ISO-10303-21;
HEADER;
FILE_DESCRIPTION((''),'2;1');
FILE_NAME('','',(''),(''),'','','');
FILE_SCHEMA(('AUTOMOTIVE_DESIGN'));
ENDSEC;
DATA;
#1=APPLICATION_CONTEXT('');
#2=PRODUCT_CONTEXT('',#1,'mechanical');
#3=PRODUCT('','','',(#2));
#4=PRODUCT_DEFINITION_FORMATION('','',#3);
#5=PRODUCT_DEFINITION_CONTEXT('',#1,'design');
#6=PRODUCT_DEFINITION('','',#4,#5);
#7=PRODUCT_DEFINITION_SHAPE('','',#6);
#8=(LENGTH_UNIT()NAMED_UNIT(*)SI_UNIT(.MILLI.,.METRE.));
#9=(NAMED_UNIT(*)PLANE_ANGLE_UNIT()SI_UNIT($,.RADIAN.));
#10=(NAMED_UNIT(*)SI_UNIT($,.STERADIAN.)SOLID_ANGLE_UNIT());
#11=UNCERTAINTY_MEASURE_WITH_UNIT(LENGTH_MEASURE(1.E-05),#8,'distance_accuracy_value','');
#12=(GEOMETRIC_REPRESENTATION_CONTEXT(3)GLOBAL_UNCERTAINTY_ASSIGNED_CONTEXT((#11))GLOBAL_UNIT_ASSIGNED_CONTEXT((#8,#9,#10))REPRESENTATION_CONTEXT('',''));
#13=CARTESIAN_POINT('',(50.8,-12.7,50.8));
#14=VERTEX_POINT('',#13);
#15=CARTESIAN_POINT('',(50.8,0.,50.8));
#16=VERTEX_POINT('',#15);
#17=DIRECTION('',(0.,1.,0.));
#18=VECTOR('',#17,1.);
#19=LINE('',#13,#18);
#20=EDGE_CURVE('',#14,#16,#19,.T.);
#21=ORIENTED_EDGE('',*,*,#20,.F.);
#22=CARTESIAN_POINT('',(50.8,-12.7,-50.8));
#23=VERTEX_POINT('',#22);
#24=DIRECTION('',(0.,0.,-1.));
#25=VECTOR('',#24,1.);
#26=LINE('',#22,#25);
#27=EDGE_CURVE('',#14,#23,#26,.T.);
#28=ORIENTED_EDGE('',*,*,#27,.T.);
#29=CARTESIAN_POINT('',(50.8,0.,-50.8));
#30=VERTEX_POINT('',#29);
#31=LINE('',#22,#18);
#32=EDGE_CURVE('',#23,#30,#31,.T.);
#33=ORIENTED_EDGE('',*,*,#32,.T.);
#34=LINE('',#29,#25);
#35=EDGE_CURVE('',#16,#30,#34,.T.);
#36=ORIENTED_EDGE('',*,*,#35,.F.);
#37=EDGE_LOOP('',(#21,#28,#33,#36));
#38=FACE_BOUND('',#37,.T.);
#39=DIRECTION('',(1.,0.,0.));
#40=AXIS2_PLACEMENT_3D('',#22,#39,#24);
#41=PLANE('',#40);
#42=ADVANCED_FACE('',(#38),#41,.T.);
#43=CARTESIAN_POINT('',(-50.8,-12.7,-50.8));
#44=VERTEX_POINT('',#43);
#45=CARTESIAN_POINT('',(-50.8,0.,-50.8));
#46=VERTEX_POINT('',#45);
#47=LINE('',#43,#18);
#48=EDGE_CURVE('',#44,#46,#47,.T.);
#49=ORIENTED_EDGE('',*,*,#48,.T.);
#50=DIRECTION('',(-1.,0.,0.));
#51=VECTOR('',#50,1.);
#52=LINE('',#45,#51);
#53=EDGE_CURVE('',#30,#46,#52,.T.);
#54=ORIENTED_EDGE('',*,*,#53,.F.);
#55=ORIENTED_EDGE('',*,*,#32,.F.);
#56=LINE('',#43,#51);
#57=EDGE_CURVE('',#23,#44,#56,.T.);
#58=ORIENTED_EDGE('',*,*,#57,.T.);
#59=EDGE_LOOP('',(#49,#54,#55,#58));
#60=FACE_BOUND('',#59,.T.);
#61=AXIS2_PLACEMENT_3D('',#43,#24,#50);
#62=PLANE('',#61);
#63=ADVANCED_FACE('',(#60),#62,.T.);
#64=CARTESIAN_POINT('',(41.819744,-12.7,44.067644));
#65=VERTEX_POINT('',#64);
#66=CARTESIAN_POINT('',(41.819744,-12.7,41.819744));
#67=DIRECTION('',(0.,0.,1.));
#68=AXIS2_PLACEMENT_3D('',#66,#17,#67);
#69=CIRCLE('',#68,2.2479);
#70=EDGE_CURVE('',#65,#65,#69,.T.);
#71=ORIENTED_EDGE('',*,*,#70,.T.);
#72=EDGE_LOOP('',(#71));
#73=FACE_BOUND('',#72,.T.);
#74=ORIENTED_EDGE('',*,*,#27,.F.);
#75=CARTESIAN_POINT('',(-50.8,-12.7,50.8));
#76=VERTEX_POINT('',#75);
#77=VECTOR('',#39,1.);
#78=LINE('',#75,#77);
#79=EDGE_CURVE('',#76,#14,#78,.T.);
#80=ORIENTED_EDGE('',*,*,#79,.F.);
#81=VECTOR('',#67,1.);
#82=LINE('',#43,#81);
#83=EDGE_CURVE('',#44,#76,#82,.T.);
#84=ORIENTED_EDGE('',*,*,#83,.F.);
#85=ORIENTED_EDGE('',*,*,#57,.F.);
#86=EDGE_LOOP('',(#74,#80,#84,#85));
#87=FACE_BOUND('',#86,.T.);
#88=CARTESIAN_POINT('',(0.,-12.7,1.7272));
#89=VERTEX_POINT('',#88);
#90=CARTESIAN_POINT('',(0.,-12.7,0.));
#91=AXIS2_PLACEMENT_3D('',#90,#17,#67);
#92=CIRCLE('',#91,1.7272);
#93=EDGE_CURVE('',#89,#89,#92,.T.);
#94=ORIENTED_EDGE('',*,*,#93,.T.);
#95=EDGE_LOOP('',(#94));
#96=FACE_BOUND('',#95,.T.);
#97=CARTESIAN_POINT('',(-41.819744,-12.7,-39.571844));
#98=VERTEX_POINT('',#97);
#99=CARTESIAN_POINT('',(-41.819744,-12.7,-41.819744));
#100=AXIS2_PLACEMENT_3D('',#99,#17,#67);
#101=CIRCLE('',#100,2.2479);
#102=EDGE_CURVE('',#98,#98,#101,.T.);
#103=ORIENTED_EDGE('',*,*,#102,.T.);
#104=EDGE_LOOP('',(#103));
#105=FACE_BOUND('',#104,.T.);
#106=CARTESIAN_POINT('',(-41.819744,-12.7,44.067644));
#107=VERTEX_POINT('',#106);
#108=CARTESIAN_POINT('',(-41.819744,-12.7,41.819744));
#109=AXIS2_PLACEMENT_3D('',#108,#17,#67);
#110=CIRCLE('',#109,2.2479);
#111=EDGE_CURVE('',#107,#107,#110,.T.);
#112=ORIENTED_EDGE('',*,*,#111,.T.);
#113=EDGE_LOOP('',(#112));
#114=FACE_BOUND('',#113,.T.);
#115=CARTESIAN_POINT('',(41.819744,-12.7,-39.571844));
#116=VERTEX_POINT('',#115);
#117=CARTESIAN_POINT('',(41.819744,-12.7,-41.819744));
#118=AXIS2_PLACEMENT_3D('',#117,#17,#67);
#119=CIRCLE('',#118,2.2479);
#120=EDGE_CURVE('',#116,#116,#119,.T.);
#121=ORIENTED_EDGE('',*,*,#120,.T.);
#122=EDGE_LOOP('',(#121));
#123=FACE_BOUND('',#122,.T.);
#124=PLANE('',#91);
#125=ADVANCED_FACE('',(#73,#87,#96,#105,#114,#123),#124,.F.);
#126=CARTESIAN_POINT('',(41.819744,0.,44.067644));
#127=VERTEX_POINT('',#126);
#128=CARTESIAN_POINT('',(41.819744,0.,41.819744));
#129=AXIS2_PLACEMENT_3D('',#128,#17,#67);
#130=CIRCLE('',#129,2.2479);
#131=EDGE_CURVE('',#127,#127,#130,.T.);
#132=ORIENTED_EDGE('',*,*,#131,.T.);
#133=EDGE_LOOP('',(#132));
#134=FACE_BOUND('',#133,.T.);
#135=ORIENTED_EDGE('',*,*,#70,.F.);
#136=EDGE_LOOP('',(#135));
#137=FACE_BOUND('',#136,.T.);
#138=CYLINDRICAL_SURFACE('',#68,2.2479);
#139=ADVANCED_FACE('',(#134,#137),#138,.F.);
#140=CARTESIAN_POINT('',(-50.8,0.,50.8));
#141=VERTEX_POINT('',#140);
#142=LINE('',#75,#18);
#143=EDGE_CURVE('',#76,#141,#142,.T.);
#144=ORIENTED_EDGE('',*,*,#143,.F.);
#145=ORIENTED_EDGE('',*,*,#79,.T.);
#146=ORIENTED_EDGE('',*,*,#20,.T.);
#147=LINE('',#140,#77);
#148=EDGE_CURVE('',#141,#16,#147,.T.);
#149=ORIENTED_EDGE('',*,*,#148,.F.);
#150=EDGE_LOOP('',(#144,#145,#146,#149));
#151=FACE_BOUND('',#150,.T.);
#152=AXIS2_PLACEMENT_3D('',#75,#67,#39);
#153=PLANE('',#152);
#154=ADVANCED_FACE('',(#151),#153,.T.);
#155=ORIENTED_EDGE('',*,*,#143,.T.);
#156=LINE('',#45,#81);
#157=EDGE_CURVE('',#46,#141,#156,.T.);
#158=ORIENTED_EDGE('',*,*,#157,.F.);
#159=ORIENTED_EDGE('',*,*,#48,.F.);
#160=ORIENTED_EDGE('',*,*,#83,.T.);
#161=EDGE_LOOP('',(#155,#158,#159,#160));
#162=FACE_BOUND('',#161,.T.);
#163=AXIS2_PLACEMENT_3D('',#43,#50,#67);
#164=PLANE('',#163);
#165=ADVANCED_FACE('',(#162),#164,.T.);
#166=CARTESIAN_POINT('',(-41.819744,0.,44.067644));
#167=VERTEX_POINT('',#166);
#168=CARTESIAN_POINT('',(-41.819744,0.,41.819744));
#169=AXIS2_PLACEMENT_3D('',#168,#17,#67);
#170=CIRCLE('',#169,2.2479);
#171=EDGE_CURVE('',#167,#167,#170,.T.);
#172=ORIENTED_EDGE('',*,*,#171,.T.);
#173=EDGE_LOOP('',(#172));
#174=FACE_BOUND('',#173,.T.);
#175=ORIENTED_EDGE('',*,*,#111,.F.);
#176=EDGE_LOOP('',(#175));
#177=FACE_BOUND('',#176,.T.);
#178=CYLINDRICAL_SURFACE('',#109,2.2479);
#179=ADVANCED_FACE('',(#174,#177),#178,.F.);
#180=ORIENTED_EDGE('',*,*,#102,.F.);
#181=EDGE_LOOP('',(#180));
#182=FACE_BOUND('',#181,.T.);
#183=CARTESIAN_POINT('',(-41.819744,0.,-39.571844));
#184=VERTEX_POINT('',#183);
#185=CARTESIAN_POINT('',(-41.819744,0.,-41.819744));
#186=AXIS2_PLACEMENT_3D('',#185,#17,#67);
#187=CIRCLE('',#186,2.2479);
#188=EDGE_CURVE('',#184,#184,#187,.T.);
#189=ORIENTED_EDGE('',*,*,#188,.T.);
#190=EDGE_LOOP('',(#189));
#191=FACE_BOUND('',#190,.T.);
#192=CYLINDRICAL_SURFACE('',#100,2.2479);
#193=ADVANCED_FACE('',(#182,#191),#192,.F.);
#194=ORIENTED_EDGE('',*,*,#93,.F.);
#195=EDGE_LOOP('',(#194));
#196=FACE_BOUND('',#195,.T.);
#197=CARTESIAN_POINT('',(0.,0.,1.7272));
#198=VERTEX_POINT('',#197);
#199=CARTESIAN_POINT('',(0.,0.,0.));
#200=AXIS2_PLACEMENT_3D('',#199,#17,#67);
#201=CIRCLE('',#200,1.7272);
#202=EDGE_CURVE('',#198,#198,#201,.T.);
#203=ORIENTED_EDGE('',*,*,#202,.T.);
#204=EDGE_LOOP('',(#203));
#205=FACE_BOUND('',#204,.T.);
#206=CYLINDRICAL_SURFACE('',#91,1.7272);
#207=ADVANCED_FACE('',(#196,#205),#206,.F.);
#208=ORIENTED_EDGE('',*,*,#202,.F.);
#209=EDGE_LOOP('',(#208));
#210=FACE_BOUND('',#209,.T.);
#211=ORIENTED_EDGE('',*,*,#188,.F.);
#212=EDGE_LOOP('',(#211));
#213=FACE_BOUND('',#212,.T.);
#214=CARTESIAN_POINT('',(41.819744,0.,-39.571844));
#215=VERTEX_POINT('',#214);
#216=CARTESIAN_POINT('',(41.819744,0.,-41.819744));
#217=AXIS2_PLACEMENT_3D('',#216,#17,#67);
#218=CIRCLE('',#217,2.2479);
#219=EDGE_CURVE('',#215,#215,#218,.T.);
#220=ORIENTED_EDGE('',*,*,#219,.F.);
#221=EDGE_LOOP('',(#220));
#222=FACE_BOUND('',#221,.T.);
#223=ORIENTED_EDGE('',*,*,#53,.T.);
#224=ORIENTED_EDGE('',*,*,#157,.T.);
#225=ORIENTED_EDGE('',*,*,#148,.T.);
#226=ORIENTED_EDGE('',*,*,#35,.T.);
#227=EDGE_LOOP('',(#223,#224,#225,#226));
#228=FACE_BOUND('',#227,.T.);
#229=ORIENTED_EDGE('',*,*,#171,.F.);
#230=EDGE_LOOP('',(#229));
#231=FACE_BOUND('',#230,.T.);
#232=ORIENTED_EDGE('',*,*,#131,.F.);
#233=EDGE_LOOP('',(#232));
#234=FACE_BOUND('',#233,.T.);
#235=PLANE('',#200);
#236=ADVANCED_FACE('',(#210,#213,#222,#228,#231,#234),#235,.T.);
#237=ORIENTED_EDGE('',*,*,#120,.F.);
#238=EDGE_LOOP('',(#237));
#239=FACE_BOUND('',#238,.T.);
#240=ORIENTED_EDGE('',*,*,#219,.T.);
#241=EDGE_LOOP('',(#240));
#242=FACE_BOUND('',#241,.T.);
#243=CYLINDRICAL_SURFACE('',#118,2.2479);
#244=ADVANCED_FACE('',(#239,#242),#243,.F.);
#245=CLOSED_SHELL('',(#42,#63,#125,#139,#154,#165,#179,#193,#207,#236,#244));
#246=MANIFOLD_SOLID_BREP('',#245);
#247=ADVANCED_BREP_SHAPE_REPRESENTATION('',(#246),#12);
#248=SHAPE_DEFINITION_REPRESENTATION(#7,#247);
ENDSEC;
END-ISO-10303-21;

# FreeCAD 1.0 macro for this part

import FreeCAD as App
import Part
import Sketcher

V = App.Vector
Q = App.Units.Quantity

doc = App.newDocument("Part")
body = doc.addObject("PartDesign::Body", "Body")

sketch1 = body.newObject("Sketcher::SketchObject", "Sketch")
sketch1.AttachmentSupport = (doc.getObject("XZ_Plane"), [""])
sketch1.MapMode = "FlatFace"
sketch1.addGeometry([
    Part.LineSegment(V(-50.8, -50.8, 0), V(-50.8, 50.8, 0)),
    Part.LineSegment(V(-50.8, 50.8, 0), V(50.8, 50.8, 0)),
    Part.LineSegment(V(50.8, 50.8, 0), V(50.8, -50.8, 0)),
    Part.LineSegment(V(50.8, -50.8, 0), V(-50.8, -50.8, 0)),
], False)
sketch1.addConstraint([
    Sketcher.Constraint("Coincident", 0, 2, 1, 1),
    Sketcher.Constraint("Coincident", 1, 2, 2, 1),
    Sketcher.Constraint("Coincident", 2, 2, 3, 1),
    Sketcher.Constraint("Coincident", 3, 2, 0, 1),
    Sketcher.Constraint("Vertical", 0),
    Sketcher.Constraint("Horizontal", 1),
    Sketcher.Constraint("Vertical", 2),
    Sketcher.Constraint("Horizontal", 3),
    Sketcher.Constraint("Symmetric", 0, 2, 2, 2, -1, 1),
    Sketcher.Constraint("Equal", 3, 0),
    Sketcher.Constraint("DistanceX", 1, 1, 1, 2, Q("4 in")),
])
pad1 = body.newObject("PartDesign::Pad", "Pad")
pad1.Profile = sketch1
pad1.Length = Q("0.5 in")

sketch2 = body.newObject("Sketcher::SketchObject", "Sketch001")
sketch2.AttachmentSupport = (doc.getObject("XZ_Plane"), [""])
sketch2.MapMode = "FlatFace"
sketch2.addGeometry([
    Part.Circle(V(-41.819744, -41.819744, 0), V(0, 0, 1), 2.2479),
    Part.Circle(V(41.819744, -41.819744, 0), V(0, 0, 1), 2.2479),
    Part.Circle(V(41.819744, 41.819744, 0), V(0, 0, 1), 2.2479),
    Part.Circle(V(-41.819744, 41.819744, 0), V(0, 0, 1), 2.2479),
    Part.Circle(V(0, 0, 0), V(0, 0, 1), 1.7272),
], False)
sketch2.addConstraint([
    Sketcher.Constraint("Coincident", 4, 3, -1, 1),
    Sketcher.Constraint("Equal", 0, 1),
    Sketcher.Constraint("Equal", 1, 2),
    Sketcher.Constraint("Equal", 2, 3),
    Sketcher.Constraint("Symmetric", 0, 3, 2, 3, -1, 1),
    Sketcher.Constraint("Symmetric", 1, 3, 3, 3, -1, 1),
    Sketcher.Constraint("Symmetric", 0, 3, 1, 3, -2),
    Sketcher.Constraint("Diameter", 0, Q("0.177 in")),
    Sketcher.Constraint("Diameter", 4, Q("0.136 in")),
    Sketcher.Constraint("DistanceX", 0, 3, -1, 1, Q("41.819744 mm")),
    Sketcher.Constraint("DistanceY", 0, 3, -1, 1, Q("41.819744 mm")),
])
pocket1 = body.newObject("PartDesign::Pocket", "Pocket")
pocket1.Profile = sketch2
pocket1.Type = "ThroughAll"
pocket1.Reversed = True

doc.recompute()
